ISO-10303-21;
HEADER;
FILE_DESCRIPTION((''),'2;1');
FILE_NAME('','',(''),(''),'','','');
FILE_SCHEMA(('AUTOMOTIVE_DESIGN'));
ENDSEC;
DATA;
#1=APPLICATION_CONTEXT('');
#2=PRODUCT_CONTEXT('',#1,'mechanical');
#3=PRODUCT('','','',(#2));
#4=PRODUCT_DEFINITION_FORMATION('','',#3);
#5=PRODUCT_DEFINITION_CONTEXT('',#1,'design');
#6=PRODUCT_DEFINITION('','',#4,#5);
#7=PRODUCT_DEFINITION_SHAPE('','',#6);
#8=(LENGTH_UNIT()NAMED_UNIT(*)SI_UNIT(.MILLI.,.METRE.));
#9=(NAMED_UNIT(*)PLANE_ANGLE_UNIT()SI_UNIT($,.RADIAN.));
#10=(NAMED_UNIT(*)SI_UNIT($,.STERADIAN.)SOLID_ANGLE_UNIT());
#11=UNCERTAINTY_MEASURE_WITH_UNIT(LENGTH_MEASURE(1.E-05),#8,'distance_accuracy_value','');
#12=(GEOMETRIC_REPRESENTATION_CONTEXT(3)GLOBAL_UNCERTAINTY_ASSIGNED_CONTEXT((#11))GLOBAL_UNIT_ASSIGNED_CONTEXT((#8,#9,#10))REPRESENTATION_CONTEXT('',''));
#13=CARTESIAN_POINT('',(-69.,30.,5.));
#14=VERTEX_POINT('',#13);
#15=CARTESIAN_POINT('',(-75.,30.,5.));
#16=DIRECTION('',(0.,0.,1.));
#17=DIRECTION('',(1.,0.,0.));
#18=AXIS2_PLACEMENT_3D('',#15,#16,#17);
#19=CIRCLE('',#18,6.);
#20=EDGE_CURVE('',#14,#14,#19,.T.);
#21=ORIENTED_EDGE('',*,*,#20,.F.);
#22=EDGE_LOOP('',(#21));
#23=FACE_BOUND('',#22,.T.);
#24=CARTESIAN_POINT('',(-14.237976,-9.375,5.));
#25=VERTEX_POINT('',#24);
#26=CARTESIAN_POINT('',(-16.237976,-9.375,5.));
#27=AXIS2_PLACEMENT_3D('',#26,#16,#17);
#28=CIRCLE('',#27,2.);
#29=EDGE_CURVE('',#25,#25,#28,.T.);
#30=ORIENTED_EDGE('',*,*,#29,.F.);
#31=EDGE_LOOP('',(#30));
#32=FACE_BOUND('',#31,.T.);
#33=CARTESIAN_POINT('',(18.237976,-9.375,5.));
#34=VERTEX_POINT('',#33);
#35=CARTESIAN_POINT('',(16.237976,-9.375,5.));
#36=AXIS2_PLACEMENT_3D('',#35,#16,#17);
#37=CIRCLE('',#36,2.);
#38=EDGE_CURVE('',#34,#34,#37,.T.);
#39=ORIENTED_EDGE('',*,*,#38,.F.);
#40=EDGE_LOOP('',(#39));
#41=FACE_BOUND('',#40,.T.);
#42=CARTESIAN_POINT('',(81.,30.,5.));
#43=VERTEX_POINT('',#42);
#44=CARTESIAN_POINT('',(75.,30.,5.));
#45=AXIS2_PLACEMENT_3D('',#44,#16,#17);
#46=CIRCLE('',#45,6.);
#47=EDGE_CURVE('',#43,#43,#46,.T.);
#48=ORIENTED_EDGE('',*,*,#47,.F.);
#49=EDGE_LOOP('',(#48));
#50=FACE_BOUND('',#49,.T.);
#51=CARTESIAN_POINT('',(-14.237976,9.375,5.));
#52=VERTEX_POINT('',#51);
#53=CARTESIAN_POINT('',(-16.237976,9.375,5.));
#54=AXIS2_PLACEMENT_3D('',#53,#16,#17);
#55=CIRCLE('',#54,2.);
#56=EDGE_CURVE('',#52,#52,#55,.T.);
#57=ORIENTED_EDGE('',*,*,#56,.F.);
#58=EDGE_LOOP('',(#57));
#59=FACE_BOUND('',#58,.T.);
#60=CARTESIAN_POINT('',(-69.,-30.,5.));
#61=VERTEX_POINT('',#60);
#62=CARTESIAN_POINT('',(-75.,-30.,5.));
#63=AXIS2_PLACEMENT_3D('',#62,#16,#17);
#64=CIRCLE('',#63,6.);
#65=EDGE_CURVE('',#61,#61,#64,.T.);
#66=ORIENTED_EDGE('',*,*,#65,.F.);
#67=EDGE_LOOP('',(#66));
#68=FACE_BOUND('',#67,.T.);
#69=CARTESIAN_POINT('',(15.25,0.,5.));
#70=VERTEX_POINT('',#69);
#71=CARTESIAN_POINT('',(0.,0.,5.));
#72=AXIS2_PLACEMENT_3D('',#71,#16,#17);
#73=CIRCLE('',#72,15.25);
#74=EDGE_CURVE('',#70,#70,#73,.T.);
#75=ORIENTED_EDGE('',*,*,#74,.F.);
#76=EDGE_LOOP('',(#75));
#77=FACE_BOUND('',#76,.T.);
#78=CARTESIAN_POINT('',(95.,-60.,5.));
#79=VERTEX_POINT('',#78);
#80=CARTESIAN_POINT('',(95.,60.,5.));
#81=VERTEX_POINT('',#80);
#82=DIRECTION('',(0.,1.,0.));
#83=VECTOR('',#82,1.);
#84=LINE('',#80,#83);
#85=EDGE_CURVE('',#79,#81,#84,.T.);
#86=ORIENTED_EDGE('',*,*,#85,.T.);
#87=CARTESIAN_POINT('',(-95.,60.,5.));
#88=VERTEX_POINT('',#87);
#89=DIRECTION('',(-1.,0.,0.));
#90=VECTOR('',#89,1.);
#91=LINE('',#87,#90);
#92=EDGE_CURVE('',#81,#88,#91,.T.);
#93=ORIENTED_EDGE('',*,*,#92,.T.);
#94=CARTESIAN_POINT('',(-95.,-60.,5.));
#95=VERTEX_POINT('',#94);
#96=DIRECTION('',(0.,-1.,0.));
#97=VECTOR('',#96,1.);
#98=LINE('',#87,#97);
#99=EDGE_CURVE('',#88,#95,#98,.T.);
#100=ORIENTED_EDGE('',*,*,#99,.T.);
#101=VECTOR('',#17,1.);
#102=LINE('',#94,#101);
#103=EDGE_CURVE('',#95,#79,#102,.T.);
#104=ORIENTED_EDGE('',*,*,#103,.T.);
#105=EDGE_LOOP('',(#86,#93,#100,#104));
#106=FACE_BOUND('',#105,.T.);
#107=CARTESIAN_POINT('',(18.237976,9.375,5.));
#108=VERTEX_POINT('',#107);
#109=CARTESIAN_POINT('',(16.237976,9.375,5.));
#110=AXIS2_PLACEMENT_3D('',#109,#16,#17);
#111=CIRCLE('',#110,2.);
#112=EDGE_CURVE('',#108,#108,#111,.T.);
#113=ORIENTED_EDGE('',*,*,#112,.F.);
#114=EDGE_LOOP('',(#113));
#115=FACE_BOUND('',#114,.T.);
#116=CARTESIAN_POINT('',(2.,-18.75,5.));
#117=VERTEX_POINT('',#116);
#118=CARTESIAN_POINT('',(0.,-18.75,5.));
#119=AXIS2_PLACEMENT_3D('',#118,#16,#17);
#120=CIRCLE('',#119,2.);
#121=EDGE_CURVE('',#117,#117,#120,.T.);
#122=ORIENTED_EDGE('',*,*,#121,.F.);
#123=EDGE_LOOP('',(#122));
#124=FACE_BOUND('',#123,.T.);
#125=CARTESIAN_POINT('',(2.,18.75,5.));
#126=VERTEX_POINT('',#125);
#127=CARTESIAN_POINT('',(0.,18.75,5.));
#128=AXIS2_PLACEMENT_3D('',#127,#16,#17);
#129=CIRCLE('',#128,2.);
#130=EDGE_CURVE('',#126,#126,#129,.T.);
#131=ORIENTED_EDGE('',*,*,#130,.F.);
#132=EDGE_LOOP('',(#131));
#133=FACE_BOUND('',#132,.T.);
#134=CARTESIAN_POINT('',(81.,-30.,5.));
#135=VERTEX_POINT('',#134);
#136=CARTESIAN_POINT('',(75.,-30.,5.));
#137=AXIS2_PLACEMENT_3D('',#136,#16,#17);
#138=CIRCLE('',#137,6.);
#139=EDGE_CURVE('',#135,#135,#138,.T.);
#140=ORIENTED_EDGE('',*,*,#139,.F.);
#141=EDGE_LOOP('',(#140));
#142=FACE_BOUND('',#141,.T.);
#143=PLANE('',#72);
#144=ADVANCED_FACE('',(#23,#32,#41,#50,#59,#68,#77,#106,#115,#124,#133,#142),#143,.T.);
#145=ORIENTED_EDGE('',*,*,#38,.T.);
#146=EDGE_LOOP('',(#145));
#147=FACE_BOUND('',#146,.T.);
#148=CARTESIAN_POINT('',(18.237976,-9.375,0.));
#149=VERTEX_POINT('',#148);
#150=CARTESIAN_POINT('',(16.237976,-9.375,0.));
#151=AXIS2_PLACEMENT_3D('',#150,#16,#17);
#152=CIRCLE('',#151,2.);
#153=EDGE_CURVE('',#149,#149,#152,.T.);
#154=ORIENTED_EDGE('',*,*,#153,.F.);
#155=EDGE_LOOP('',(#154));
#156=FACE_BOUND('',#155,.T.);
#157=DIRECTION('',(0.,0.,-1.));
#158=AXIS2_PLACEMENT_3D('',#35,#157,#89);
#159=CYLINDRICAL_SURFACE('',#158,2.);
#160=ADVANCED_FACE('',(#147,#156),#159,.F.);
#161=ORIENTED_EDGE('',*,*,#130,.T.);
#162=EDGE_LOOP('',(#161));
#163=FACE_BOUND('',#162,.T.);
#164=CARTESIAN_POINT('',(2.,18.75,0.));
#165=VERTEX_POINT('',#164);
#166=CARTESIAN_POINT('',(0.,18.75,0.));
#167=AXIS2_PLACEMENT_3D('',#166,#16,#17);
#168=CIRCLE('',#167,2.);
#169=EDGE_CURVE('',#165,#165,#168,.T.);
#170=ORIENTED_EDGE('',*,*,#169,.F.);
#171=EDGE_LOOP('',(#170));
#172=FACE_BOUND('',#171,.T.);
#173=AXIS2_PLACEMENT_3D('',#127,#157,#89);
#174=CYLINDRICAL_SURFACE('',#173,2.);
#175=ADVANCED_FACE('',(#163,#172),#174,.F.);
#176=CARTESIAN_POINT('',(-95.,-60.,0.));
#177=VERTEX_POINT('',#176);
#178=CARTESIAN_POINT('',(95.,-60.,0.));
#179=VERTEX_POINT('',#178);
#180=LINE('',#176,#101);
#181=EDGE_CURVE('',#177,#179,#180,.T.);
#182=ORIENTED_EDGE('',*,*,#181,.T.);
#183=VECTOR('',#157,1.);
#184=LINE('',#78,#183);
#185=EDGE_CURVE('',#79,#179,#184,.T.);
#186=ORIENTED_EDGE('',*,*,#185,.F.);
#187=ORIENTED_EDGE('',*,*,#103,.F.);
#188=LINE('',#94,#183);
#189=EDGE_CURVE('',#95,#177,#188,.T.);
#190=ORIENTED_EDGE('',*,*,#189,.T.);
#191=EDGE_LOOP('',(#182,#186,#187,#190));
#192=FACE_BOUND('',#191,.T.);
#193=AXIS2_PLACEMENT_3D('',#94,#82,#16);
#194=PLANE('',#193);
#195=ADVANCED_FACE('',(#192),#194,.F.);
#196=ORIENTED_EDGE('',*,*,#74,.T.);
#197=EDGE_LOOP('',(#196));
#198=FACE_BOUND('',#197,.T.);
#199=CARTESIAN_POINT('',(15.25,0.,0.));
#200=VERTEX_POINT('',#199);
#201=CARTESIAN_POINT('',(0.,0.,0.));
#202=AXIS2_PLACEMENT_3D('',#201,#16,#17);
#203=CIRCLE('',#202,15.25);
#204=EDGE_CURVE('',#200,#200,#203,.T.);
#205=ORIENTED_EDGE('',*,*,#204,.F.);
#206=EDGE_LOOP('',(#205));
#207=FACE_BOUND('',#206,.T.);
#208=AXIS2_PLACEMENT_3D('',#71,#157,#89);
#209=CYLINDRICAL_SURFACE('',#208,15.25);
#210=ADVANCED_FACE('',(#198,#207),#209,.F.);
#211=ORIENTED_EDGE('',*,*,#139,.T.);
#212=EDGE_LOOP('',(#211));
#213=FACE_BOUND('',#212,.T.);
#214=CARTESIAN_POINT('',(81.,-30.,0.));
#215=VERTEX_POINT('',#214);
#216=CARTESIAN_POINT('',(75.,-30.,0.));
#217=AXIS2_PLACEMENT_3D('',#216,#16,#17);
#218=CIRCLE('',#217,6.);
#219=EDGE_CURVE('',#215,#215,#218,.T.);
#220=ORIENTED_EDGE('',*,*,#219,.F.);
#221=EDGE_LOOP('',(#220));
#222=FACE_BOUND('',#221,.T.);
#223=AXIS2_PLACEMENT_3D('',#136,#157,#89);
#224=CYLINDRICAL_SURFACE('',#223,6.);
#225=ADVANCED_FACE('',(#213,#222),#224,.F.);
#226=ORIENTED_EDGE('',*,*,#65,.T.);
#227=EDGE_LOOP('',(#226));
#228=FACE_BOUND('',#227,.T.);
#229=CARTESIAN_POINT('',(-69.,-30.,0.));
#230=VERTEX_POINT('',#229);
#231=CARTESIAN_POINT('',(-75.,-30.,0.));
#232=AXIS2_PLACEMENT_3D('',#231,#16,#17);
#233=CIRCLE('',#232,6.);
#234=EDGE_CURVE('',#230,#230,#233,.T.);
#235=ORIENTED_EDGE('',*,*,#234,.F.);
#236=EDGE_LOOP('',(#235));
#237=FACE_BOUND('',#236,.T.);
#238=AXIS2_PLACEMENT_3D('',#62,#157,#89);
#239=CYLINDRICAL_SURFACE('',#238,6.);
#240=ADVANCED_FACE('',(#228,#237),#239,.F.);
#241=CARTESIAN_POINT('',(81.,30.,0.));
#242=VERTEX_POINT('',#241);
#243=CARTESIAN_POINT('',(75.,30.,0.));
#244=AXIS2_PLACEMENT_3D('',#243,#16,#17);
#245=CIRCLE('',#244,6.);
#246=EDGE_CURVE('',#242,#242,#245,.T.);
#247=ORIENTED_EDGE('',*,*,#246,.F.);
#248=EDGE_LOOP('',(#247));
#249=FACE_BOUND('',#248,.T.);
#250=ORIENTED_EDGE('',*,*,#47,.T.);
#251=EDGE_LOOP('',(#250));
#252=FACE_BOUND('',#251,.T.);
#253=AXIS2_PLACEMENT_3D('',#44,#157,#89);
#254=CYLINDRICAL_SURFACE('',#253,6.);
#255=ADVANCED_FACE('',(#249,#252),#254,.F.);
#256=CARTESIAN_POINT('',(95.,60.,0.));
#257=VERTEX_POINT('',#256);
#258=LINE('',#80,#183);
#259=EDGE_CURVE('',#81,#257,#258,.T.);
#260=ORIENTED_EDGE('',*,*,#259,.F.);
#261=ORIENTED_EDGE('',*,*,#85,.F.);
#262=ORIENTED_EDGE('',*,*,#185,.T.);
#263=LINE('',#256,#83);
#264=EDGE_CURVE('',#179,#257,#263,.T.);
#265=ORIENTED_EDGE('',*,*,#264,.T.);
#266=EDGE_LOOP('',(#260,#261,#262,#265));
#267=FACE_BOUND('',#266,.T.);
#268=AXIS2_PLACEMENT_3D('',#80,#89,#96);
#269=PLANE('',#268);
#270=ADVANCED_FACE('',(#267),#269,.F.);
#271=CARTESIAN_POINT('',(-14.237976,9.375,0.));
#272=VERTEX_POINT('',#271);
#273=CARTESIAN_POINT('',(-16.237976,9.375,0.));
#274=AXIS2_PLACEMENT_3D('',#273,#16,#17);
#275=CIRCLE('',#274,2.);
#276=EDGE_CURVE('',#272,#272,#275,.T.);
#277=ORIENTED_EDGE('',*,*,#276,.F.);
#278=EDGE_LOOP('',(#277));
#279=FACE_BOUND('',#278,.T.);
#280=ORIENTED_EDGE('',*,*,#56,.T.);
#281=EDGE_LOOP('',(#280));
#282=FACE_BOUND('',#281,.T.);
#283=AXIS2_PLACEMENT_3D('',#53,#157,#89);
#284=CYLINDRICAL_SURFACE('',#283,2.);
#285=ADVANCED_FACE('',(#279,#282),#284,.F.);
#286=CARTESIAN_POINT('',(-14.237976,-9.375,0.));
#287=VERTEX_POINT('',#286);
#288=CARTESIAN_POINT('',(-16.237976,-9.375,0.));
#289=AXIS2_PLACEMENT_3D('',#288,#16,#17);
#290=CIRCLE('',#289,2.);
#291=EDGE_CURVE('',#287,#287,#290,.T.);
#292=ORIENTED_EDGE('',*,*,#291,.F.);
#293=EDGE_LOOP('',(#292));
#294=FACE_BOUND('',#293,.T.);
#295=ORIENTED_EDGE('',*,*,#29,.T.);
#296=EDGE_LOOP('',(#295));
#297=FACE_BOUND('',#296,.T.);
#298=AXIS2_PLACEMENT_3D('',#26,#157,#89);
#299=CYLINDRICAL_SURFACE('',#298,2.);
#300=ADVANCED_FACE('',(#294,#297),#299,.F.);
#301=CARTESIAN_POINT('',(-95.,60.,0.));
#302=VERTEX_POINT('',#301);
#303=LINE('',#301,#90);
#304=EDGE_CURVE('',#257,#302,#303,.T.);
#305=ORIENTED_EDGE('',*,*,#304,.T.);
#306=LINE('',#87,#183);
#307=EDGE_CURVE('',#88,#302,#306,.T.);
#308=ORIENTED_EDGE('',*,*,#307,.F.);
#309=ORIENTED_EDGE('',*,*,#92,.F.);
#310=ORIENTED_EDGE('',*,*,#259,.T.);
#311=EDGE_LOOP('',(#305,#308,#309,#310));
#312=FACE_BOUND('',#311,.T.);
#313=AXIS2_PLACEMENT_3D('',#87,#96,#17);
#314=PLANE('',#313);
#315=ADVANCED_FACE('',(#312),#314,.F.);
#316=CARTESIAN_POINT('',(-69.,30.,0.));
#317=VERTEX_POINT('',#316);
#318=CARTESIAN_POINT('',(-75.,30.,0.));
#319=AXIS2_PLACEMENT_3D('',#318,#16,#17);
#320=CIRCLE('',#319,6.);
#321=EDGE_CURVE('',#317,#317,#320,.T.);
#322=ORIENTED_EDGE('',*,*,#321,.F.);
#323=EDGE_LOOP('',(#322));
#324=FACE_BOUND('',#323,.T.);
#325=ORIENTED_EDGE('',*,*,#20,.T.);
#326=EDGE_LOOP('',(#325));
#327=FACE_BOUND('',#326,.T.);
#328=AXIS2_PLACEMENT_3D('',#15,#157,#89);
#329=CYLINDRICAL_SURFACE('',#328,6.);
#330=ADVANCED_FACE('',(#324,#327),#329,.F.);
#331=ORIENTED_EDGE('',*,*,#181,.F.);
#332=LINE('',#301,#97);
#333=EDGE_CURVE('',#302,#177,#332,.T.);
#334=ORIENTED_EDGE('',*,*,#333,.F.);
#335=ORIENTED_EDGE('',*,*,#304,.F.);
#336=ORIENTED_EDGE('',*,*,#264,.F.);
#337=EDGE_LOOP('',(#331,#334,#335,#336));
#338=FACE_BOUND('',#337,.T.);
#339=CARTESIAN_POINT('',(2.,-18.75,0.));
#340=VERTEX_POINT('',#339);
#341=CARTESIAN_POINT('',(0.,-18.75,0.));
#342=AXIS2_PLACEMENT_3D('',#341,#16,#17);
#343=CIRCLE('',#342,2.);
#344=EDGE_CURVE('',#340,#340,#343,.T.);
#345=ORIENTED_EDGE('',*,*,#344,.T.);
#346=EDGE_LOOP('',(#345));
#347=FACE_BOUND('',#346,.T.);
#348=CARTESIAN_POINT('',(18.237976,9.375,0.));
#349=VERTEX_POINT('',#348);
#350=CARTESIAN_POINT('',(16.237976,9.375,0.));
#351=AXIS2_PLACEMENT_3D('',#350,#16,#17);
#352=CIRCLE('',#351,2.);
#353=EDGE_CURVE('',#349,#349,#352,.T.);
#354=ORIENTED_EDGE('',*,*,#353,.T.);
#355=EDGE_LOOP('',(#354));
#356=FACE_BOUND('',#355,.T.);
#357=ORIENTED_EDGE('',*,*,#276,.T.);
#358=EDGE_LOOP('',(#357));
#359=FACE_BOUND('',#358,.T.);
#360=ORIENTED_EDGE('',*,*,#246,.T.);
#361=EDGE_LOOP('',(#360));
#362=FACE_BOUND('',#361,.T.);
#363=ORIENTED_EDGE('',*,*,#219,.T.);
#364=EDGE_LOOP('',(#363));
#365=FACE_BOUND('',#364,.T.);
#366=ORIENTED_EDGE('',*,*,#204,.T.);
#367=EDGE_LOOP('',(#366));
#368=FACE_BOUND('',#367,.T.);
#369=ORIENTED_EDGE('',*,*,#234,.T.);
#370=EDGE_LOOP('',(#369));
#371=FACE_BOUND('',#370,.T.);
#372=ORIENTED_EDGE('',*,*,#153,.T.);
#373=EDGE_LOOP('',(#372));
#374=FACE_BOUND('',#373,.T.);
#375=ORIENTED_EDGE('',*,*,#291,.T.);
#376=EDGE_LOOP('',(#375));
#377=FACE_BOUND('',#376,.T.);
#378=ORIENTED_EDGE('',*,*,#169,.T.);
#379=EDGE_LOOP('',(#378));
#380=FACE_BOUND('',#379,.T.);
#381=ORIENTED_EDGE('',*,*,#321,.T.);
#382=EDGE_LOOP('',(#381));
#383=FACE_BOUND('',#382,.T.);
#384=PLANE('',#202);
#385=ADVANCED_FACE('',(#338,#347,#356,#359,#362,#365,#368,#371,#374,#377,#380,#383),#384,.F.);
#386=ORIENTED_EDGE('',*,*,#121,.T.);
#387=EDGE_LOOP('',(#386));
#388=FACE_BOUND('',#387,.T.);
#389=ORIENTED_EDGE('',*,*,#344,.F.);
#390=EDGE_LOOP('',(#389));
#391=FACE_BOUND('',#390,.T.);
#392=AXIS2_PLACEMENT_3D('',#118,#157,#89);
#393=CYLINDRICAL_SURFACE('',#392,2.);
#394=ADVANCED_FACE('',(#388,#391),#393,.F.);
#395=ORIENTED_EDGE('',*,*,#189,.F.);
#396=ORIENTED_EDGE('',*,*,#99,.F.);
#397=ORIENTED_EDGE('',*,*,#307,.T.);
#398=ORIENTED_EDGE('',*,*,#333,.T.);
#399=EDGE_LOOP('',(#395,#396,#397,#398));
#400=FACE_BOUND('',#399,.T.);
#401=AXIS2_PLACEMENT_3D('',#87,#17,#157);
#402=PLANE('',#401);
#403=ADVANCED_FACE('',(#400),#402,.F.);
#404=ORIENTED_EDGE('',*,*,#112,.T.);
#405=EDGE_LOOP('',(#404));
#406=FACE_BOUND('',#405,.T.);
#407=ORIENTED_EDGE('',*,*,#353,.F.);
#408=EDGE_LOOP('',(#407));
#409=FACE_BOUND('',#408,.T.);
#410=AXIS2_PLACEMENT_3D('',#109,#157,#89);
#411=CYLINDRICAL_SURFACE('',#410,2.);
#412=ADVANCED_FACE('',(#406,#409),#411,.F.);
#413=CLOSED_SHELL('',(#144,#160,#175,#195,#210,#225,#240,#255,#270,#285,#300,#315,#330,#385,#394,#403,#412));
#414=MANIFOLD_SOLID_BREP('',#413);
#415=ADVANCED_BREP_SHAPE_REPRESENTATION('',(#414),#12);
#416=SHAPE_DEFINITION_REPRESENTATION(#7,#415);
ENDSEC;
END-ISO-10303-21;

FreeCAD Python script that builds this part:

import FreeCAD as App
import Part
import Sketcher

V = App.Vector


def add_polygon(sketch, points):
    """Adds a closed chain of lines whose ends are joined by coincident constraints."""
    first, n = sketch.GeometryCount, len(points)
    for a, b in zip(points, points[1:] + points[:1]):
        sketch.addGeometry(Part.LineSegment(App.Vector(*a, 0), App.Vector(*b, 0)), False)
    for i in range(n):
        sketch.addConstraint(Sketcher.Constraint("Coincident", first + i, 2, first + (i + 1) % n, 1))

doc = App.newDocument("Part")
params = doc.addObject("Spreadsheet::Sheet", "Params")
for row, (alias, value) in enumerate([
    ("sketch1_diameter", "12 mm"),
    ("sketch1_diameter2", "4 mm"),
    ("sketch1_diameter3", "30.5 mm"),
    ("sketch1_width", "190 mm"),
    ("sketch1_height", "120 mm"),
    ("pad1_length", "5 mm"),
], start=1):
    params.set(f"A{row}", alias)
    params.set(f"B{row}", "=" + value)
    params.setAlias(f"B{row}", alias)

body = doc.addObject("PartDesign::Body", "Body")

# Sketch on XY plane
sketch1 = body.newObject("Sketcher::SketchObject", "Sketch")
sketch1.AttachmentSupport = (doc.getObject("XY_Plane"), [""])
sketch1.MapMode = "FlatFace"
add_polygon(sketch1, [(-95, 60), (-95, -60), (95, -60), (95, 60)])  # lines 0-3
sketch1.addGeometry(Part.Circle(V(-75, -30, 0), V(0, 0, 1), 6), False)  # 4
sketch1.addGeometry(Part.Circle(V(-16.237976, -9.375, 0), V(0, 0, 1), 2), False)  # 5
sketch1.addGeometry(Part.Circle(V(0, -18.75, 0), V(0, 0, 1), 2), False)  # 6
sketch1.addGeometry(Part.Circle(V(75, -30, 0), V(0, 0, 1), 6), False)  # 7
sketch1.addGeometry(Part.Circle(V(16.237976, -9.375, 0), V(0, 0, 1), 2), False)  # 8
sketch1.addGeometry(Part.Circle(V(-16.237976, 9.375, 0), V(0, 0, 1), 2), False)  # 9
sketch1.addGeometry(Part.Circle(V(-75, 30, 0), V(0, 0, 1), 6), False)  # 10
sketch1.addGeometry(Part.Circle(V(0, 0, 0), V(0, 0, 1), 15.25), False)  # 11
sketch1.addGeometry(Part.Circle(V(16.237976, 9.375, 0), V(0, 0, 1), 2), False)  # 12
sketch1.addGeometry(Part.Circle(V(0, 18.75, 0), V(0, 0, 1), 2), False)  # 13
sketch1.addGeometry(Part.Circle(V(75, 30, 0), V(0, 0, 1), 6), False)  # 14
sketch1.addConstraint([
    Sketcher.Constraint("Vertical", 0),
    Sketcher.Constraint("Horizontal", 1),
    Sketcher.Constraint("Vertical", 2),
    Sketcher.Constraint("Horizontal", 3),
    Sketcher.Constraint("Coincident", 11, 3, -1, 1),
    Sketcher.Constraint("Equal", 5, 6),
    Sketcher.Constraint("Equal", 4, 7),
    Sketcher.Constraint("Equal", 6, 8),
    Sketcher.Constraint("Equal", 8, 9),
    Sketcher.Constraint("Equal", 7, 10),
    Sketcher.Constraint("Equal", 9, 12),
    Sketcher.Constraint("Equal", 12, 13),
    Sketcher.Constraint("Equal", 10, 14),
    Sketcher.Constraint("Symmetric", 8, 3, 9, 3, -1, 1),
    Sketcher.Constraint("Symmetric", 7, 3, 10, 3, -1, 1),
    Sketcher.Constraint("Symmetric", 5, 3, 12, 3, -1, 1),
    Sketcher.Constraint("Symmetric", 6, 3, 13, 3, -1, 1),
    Sketcher.Constraint("Symmetric", 4, 3, 14, 3, -1, 1),
    Sketcher.Constraint("Symmetric", 0, 2, 2, 2, -1, 1),
    Sketcher.Constraint("Symmetric", 4, 3, 7, 3, -2),
    Sketcher.Constraint("Symmetric", 5, 3, 8, 3, -2),
    Sketcher.Constraint("PointOnObject", 6, 3, -2),
    Sketcher.Constraint("Diameter", 4, 12.0),
    Sketcher.Constraint("Diameter", 5, 4.0),
    Sketcher.Constraint("Diameter", 11, 30.5),
    Sketcher.Constraint("DistanceX", 1, 1, 1, 2, 190.0),
    Sketcher.Constraint("DistanceY", 0, 2, 0, 1, 120.0),
    Sketcher.Constraint("DistanceX", 4, 3, -1, 1, 75.0),
    Sketcher.Constraint("DistanceY", 4, 3, -1, 1, 30.0),
    Sketcher.Constraint("DistanceY", 6, 3, -1, 1, 18.75),
    Sketcher.Constraint("DistanceY", 5, 3, 9, 3, 18.75),
    Sketcher.Constraint("DistanceX", 5, 3, -1, 1, 16.237976),
])
sketch1.setExpression("Constraints[26]", "Params.sketch1_diameter")
sketch1.setExpression("Constraints[27]", "Params.sketch1_diameter2")
sketch1.setExpression("Constraints[28]", "Params.sketch1_diameter3")
sketch1.setExpression("Constraints[29]", "Params.sketch1_width")
sketch1.setExpression("Constraints[30]", "Params.sketch1_height")
pad1 = body.newObject("PartDesign::Pad", "Pad")
pad1.Profile = sketch1
pad1.setExpression("Length", "Params.pad1_length")

doc.recompute()
